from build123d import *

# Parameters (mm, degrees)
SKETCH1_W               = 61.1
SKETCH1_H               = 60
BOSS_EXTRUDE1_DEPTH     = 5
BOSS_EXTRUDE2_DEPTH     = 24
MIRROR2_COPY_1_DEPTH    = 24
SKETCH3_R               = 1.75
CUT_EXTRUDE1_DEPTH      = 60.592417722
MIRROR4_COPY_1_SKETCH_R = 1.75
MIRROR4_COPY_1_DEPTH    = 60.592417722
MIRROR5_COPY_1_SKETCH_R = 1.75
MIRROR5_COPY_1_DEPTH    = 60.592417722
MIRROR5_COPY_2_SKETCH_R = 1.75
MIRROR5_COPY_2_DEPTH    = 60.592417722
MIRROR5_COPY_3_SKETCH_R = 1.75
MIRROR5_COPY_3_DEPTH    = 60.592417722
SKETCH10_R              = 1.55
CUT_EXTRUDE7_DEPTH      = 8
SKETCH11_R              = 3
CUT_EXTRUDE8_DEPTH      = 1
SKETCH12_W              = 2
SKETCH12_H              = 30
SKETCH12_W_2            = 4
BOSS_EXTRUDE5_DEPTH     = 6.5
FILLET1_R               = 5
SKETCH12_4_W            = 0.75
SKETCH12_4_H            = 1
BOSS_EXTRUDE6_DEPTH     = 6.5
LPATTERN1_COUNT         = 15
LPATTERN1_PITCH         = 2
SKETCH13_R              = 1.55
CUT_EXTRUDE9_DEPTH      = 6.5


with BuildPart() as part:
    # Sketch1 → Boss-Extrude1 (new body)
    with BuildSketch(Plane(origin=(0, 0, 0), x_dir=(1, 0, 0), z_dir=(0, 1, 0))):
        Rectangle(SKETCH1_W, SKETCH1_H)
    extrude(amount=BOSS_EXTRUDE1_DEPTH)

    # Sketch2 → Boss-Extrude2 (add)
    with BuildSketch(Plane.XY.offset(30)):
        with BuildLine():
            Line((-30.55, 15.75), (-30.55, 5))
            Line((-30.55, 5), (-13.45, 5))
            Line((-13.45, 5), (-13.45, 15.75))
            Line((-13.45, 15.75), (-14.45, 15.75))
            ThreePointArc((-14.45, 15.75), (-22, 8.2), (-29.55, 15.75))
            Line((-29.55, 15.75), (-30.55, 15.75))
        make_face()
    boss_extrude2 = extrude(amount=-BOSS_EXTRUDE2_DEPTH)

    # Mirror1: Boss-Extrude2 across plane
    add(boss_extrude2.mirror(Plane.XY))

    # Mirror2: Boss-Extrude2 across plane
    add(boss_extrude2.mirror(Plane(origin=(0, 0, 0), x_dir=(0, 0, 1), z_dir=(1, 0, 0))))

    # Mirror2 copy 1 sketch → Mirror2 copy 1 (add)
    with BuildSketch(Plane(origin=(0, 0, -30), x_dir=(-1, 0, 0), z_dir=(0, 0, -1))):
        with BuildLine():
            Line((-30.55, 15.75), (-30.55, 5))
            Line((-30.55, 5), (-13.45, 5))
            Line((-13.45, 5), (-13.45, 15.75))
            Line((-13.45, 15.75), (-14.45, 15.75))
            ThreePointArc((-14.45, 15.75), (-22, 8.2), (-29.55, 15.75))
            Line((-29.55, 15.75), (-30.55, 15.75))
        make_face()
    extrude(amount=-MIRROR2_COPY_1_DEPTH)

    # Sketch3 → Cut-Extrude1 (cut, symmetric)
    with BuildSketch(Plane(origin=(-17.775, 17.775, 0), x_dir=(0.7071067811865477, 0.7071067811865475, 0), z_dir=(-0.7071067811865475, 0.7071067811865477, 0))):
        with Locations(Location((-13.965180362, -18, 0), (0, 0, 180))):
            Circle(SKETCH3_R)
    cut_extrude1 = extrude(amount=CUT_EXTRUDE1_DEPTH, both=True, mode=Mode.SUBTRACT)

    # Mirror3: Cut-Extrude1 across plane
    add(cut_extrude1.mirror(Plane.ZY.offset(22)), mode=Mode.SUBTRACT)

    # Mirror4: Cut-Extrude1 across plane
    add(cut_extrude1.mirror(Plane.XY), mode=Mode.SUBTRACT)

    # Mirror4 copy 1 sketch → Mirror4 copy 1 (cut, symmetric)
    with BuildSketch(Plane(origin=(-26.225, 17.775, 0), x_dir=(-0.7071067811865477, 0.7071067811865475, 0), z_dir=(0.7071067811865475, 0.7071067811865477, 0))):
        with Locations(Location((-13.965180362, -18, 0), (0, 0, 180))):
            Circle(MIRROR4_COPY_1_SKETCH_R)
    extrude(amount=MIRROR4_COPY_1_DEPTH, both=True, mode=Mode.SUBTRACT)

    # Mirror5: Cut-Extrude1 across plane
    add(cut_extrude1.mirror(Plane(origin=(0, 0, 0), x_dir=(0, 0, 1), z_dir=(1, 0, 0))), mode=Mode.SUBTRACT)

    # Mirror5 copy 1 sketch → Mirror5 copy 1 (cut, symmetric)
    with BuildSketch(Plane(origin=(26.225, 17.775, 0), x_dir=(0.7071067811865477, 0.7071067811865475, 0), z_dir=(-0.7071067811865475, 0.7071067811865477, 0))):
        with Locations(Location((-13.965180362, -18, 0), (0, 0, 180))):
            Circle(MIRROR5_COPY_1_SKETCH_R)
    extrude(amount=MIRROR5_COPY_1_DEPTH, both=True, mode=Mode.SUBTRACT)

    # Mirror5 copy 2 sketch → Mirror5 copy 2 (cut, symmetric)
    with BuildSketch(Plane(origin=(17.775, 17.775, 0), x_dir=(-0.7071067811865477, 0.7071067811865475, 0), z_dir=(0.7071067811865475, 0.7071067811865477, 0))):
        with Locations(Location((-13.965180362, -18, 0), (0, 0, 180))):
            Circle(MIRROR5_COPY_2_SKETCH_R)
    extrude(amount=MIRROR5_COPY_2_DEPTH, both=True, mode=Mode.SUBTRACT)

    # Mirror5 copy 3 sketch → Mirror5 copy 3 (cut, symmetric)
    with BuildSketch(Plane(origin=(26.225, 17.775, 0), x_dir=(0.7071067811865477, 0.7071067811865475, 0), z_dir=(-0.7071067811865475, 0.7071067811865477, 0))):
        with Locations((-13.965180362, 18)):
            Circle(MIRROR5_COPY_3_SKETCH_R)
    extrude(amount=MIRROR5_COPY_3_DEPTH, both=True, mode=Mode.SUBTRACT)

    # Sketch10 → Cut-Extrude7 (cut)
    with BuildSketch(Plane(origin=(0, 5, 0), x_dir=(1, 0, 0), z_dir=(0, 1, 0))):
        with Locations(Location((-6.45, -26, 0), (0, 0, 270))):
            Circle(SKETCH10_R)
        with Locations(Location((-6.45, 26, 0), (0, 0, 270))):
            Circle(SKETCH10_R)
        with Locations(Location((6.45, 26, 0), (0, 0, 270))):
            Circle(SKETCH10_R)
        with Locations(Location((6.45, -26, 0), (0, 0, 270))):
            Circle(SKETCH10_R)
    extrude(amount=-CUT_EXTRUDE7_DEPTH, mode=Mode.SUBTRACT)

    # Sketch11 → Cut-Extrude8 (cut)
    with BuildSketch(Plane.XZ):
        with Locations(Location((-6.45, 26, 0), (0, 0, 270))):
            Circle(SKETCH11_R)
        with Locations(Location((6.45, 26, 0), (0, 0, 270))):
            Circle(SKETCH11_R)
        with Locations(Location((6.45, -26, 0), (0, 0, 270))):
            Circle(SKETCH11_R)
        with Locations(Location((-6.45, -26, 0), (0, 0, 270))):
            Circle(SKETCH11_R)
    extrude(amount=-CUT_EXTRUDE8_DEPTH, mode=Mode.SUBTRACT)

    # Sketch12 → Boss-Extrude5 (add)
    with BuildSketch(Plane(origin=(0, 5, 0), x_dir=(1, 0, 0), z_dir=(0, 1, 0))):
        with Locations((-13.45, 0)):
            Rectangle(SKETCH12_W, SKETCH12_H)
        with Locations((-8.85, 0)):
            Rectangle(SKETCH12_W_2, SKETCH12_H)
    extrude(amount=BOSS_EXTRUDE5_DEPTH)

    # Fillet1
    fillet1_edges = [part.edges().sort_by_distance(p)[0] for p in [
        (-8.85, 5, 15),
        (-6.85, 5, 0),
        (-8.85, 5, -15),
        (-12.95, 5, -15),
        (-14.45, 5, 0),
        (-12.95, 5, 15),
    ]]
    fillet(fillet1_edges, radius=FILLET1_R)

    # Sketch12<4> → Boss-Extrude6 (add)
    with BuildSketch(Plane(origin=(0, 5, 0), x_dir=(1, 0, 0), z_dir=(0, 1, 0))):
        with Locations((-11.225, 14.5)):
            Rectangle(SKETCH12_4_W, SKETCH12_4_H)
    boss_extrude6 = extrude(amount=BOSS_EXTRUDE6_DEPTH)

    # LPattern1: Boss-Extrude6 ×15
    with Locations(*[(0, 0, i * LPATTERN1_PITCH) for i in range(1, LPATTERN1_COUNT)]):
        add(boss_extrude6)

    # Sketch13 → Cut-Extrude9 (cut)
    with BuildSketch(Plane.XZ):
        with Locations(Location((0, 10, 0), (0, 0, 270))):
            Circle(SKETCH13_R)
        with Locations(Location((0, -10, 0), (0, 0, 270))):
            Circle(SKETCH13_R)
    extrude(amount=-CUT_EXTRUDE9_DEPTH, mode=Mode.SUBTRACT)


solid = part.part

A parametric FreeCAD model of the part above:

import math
import FreeCAD as App
import Part
import Sketcher

V = App.Vector


def edges_at(feature, points):
    """Names of the edges that pass closest to the given points."""
    edges = feature.Shape.Edges
    near = lambda p: min(range(len(edges)), key=lambda i: edges[i].distToShape(Part.Vertex(*p))[0])
    return sorted({f"Edge{near(p) + 1}" for p in points})

doc = App.newDocument("Part")
body = doc.addObject("PartDesign::Body", "Body")

# Sketch on XZ plane
sketch1 = body.newObject("Sketcher::SketchObject", "Sketch")
sketch1.AttachmentSupport = (doc.getObject("XZ_Plane"), [""])
sketch1.MapMode = "FlatFace"
sketch1.addGeometry(Part.LineSegment(V(-31, -30, 0), V(-31, 30, 0)), False)
sketch1.addGeometry(Part.LineSegment(V(-31, 30, 0), V(31, 30, 0)), False)
sketch1.addGeometry(Part.LineSegment(V(31, 30, 0), V(31, -30, 0)), False)
sketch1.addGeometry(Part.LineSegment(V(31, -30, 0), V(-31, -30, 0)), False)
sketch1.addConstraint(Sketcher.Constraint("Coincident", 0, 2, 1, 1))
sketch1.addConstraint(Sketcher.Constraint("Coincident", 1, 2, 2, 1))
sketch1.addConstraint(Sketcher.Constraint("Coincident", 2, 2, 3, 1))
sketch1.addConstraint(Sketcher.Constraint("Coincident", 3, 2, 0, 1))
sketch1.addConstraint(Sketcher.Constraint("Vertical", 0))
sketch1.addConstraint(Sketcher.Constraint("Horizontal", 1))
sketch1.addConstraint(Sketcher.Constraint("Vertical", 2))
sketch1.addConstraint(Sketcher.Constraint("Horizontal", 3))
sketch1.addConstraint(Sketcher.Constraint("Symmetric", 0, 2, 2, 2, -1, 1))
sketch1.addConstraint(Sketcher.Constraint("DistanceY", 0, 1, 0, 2, 60.0))
sketch1.addConstraint(Sketcher.Constraint("DistanceX", 1, 1, 1, 2, 61.1))
pad1 = body.newObject("PartDesign::Pad", "Pad")
pad1.Profile = sketch1
pad1.Length = 5
pad1.Reversed = True

# Sketch on XY plane
sketch2 = body.newObject("Sketcher::SketchObject", "Sketch001")
sketch2.AttachmentSupport = (doc.getObject("XY_Plane"), [""])
sketch2.MapMode = "FlatFace"
sketch2.AttachmentOffset = App.Placement(V(0, 0, 30), App.Rotation())
sketch2.addGeometry(Part.LineSegment(V(-30.6, 15.8, 0), V(-30.6, 5, 0)), False)
sketch2.addGeometry(Part.LineSegment(V(-30.6, 5, 0), V(-13.4, 5, 0)), False)
sketch2.addGeometry(Part.LineSegment(V(-13.4, 5, 0), V(-13.4, 15.8, 0)), False)
sketch2.addGeometry(Part.LineSegment(V(-13.4, 15.8, 0), V(-14.4, 15.8, 0)), False)
sketch2.addGeometry(Part.ArcOfCircle(Part.Circle(V(-22, 15.8, 0), V(0, 0, 1), 7.5), math.radians(180), math.radians(360)), False)
sketch2.addGeometry(Part.LineSegment(V(-29.6, 15.8, 0), V(-30.6, 15.8, 0)), False)
sketch2.addConstraint(Sketcher.Constraint("Coincident", 0, 2, 1, 1))
sketch2.addConstraint(Sketcher.Constraint("Coincident", 1, 2, 2, 1))
sketch2.addConstraint(Sketcher.Constraint("Coincident", 2, 2, 3, 1))
sketch2.addConstraint(Sketcher.Constraint("Coincident", 3, 2, 4, 2))
sketch2.addConstraint(Sketcher.Constraint("Coincident", 4, 1, 5, 1))
sketch2.addConstraint(Sketcher.Constraint("Coincident", 5, 2, 0, 1))
sketch2.addConstraint(Sketcher.Constraint("Vertical", 0))
sketch2.addConstraint(Sketcher.Constraint("Horizontal", 1))
sketch2.addConstraint(Sketcher.Constraint("Vertical", 2))
sketch2.addConstraint(Sketcher.Constraint("Horizontal", 3))
sketch2.addConstraint(Sketcher.Constraint("Horizontal", 5))
sketch2.addConstraint(Sketcher.Constraint("Horizontal", 4, 3, 2, 2))
sketch2.addConstraint(Sketcher.Constraint("Horizontal", 3, 2, 4, 1))
sketch2.addConstraint(Sketcher.Constraint("Equal", 3, 5))
sketch2.addConstraint(Sketcher.Constraint("DistanceX", 3, 2, 3, 1, 1.0))
sketch2.addConstraint(Sketcher.Constraint("Radius", 4, 7.55))
sketch2.addConstraint(Sketcher.Constraint("DistanceX", 4, 3, -1, 1, 22.0))
sketch2.addConstraint(Sketcher.Constraint("DistanceY", -1, 1, 0, 2, 5.0))
sketch2.addConstraint(Sketcher.Constraint("DistanceY", 0, 2, 0, 1, 10.75))
pad2 = body.newObject("PartDesign::Pad", "Pad001")
pad2.Profile = sketch2
pad2.Length = 24
pad2.Reversed = True
doc.recompute()

mirrored = body.newObject("PartDesign::Mirrored", "Mirrored")
mirrored.Originals = [pad2]
mirrored.MirrorPlane = (doc.getObject("XY_Plane"), [""])
body.Tip = mirrored
doc.recompute()

mirrored2 = body.newObject("PartDesign::Mirrored", "Mirrored001")
mirrored2.Originals = [pad2]
mirrored2.MirrorPlane = (doc.getObject("YZ_Plane"), [""])
body.Tip = mirrored2

# Sketch on XY plane
sketch3 = body.newObject("Sketcher::SketchObject", "Sketch002")
sketch3.AttachmentSupport = (doc.getObject("XY_Plane"), [""])
sketch3.MapMode = "FlatFace"
sketch3.AttachmentOffset = App.Placement(V(0, 0, -30), App.Rotation())
sketch3.addGeometry(Part.LineSegment(V(30.6, 15.8, 0), V(30.6, 5, 0)), False)
sketch3.addGeometry(Part.LineSegment(V(30.6, 5, 0), V(13.4, 5, 0)), False)
sketch3.addGeometry(Part.LineSegment(V(13.4, 5, 0), V(13.4, 15.8, 0)), False)
sketch3.addGeometry(Part.LineSegment(V(13.4, 15.8, 0), V(14.4, 15.8, 0)), False)
sketch3.addGeometry(Part.ArcOfCircle(Part.Circle(V(22, 15.8, 0), V(0, 0, 1), 7.5), math.radians(180), math.radians(360)), False)
sketch3.addGeometry(Part.LineSegment(V(29.6, 15.8, 0), V(30.6, 15.8, 0)), False)
sketch3.addConstraint(Sketcher.Constraint("Coincident", 0, 2, 1, 1))
sketch3.addConstraint(Sketcher.Constraint("Coincident", 1, 2, 2, 1))
sketch3.addConstraint(Sketcher.Constraint("Coincident", 2, 2, 3, 1))
sketch3.addConstraint(Sketcher.Constraint("Coincident", 3, 2, 4, 1))
sketch3.addConstraint(Sketcher.Constraint("Coincident", 4, 2, 5, 1))
sketch3.addConstraint(Sketcher.Constraint("Coincident", 5, 2, 0, 1))
sketch3.addConstraint(Sketcher.Constraint("Vertical", 0))
sketch3.addConstraint(Sketcher.Constraint("Horizontal", 1))
sketch3.addConstraint(Sketcher.Constraint("Vertical", 2))
sketch3.addConstraint(Sketcher.Constraint("Horizontal", 3))
sketch3.addConstraint(Sketcher.Constraint("Horizontal", 5))
sketch3.addConstraint(Sketcher.Constraint("Horizontal", 4, 3, 2, 2))
sketch3.addConstraint(Sketcher.Constraint("Horizontal", 3, 2, 4, 2))
sketch3.addConstraint(Sketcher.Constraint("Equal", 3, 5))
sketch3.addConstraint(Sketcher.Constraint("DistanceX", 3, 1, 3, 2, 1.0))
sketch3.addConstraint(Sketcher.Constraint("Radius", 4, 7.55))
sketch3.addConstraint(Sketcher.Constraint("DistanceX", -1, 1, 4, 3, 22.0))
sketch3.addConstraint(Sketcher.Constraint("DistanceY", -1, 1, 0, 2, 5.0))
sketch3.addConstraint(Sketcher.Constraint("DistanceY", 0, 2, 0, 1, 10.75))
pad3 = body.newObject("PartDesign::Pad", "Pad002")
pad3.Profile = sketch3
pad3.Length = 24

# Sketch on an angled plane
sketch4 = body.newObject("Sketcher::SketchObject", "Sketch003")
sketch4.Placement = App.Placement(V(-17.775, 17.775, 0), App.Rotation(V(0.707106781, 0.707106781, 0), V(0, 0, -0.999999999), V(-0.707106781, 0.707106781, 0), "ZXY"))
sketch4.addGeometry(Part.Circle(V(-14, -18, 0), V(0, 0, 1), 1.8), False)
sketch4.addConstraint(Sketcher.Constraint("Diameter", 0, 3.5))
sketch4.addConstraint(Sketcher.Constraint("DistanceY", 0, 3, -1, 1, 18.0))
sketch4.addConstraint(Sketcher.Constraint("DistanceX", 0, 3, -1, 1, 13.96518))
pocket1 = body.newObject("PartDesign::Pocket", "Pocket")
pocket1.Profile = sketch4
pocket1.Length = 121.184835
pocket1.Midplane = True
doc.recompute()

datumplane = body.newObject("PartDesign::Plane", "DatumPlane")
datumplane.AttachmentSupport = (doc.getObject("YZ_Plane"), [""])
datumplane.MapMode = "FlatFace"
datumplane.AttachmentOffset = App.Placement(V(0, 0, -22), App.Rotation())
mirrored3 = body.newObject("PartDesign::Mirrored", "Mirrored002")
mirrored3.Originals = [pocket1]
mirrored3.MirrorPlane = (datumplane, [""])
body.Tip = mirrored3
doc.recompute()

mirrored4 = body.newObject("PartDesign::Mirrored", "Mirrored003")
mirrored4.Originals = [pocket1]
mirrored4.MirrorPlane = (doc.getObject("XY_Plane"), [""])
body.Tip = mirrored4

# Sketch on an angled plane
sketch5 = body.newObject("Sketcher::SketchObject", "Sketch004")
sketch5.Placement = App.Placement(V(-26.225, 17.775, 0), App.Rotation(V(-0.707106781, 0.707106781, 0), V(0, 0, 0.999999999), V(0.707106781, 0.707106781, 0), "ZXY"))
sketch5.addGeometry(Part.Circle(V(-14, -18, 0), V(0, 0, 1), 1.8), False)
sketch5.addConstraint(Sketcher.Constraint("Diameter", 0, 3.5))
sketch5.addConstraint(Sketcher.Constraint("DistanceY", 0, 3, -1, 1, 18.0))
sketch5.addConstraint(Sketcher.Constraint("DistanceX", 0, 3, -1, 1, 13.96518))
pocket2 = body.newObject("PartDesign::Pocket", "Pocket001")
pocket2.Profile = sketch5
pocket2.Length = 121.184835
pocket2.Midplane = True
doc.recompute()

mirrored5 = body.newObject("PartDesign::Mirrored", "Mirrored004")
mirrored5.Originals = [pocket1]
mirrored5.MirrorPlane = (doc.getObject("YZ_Plane"), [""])
body.Tip = mirrored5

# Sketch on an angled plane
sketch6 = body.newObject("Sketcher::SketchObject", "Sketch005")
sketch6.Placement = App.Placement(V(26.225, 17.775, 0), App.Rotation(V(0.707106781, 0.707106781, 0), V(0, 0, -0.999999999), V(-0.707106781, 0.707106781, 0), "ZXY"))
sketch6.addGeometry(Part.Circle(V(-14, -18, 0), V(0, 0, 1), 1.8), False)
sketch6.addConstraint(Sketcher.Constraint("Diameter", 0, 3.5))
sketch6.addConstraint(Sketcher.Constraint("DistanceY", 0, 3, -1, 1, 18.0))
sketch6.addConstraint(Sketcher.Constraint("DistanceX", 0, 3, -1, 1, 13.96518))
pocket3 = body.newObject("PartDesign::Pocket", "Pocket002")
pocket3.Profile = sketch6
pocket3.Length = 121.184835
pocket3.Midplane = True

# Sketch on an angled plane
sketch7 = body.newObject("Sketcher::SketchObject", "Sketch006")
sketch7.Placement = App.Placement(V(17.775, 17.775, 0), App.Rotation(V(-0.707106781, 0.707106781, 0), V(0, 0, 0.999999999), V(0.707106781, 0.707106781, 0), "ZXY"))
sketch7.addGeometry(Part.Circle(V(-14, -18, 0), V(0, 0, 1), 1.8), False)
sketch7.addConstraint(Sketcher.Constraint("Diameter", 0, 3.5))
sketch7.addConstraint(Sketcher.Constraint("DistanceY", 0, 3, -1, 1, 18.0))
sketch7.addConstraint(Sketcher.Constraint("DistanceX", 0, 3, -1, 1, 13.96518))
pocket4 = body.newObject("PartDesign::Pocket", "Pocket003")
pocket4.Profile = sketch7
pocket4.Length = 121.184835
pocket4.Midplane = True

# Sketch on an angled plane
sketch8 = body.newObject("Sketcher::SketchObject", "Sketch007")
sketch8.Placement = App.Placement(V(26.225, 17.775, 0), App.Rotation(V(0.707106781, 0.707106781, 0), V(0, 0, -0.999999999), V(-0.707106781, 0.707106781, 0), "ZXY"))
sketch8.addGeometry(Part.Circle(V(-14, 18, 0), V(0, 0, 1), 1.8), False)
sketch8.addConstraint(Sketcher.Constraint("Diameter", 0, 3.5))
sketch8.addConstraint(Sketcher.Constraint("DistanceY", -1, 1, 0, 3, 18.0))
sketch8.addConstraint(Sketcher.Constraint("DistanceX", 0, 3, -1, 1, 13.96518))
pocket5 = body.newObject("PartDesign::Pocket", "Pocket004")
pocket5.Profile = sketch8
pocket5.Length = 121.184835
pocket5.Midplane = True

# Sketch on XZ plane
sketch9 = body.newObject("Sketcher::SketchObject", "Sketch008")
sketch9.AttachmentSupport = (doc.getObject("XZ_Plane"), [""])
sketch9.MapMode = "FlatFace"
sketch9.AttachmentOffset = App.Placement(V(0, 0, -5), App.Rotation())
sketch9.addGeometry(Part.Circle(V(-6.5, 26, 0), V(0, 0, 1), 1.6), False)
sketch9.addGeometry(Part.Circle(V(-6.5, -26, 0), V(0, 0, 1), 1.6), False)
sketch9.addGeometry(Part.Circle(V(6.5, -26, 0), V(0, 0, 1), 1.6), False)
sketch9.addGeometry(Part.Circle(V(6.5, 26, 0), V(0, 0, 1), 1.6), False)
sketch9.addConstraint(Sketcher.Constraint("Equal", 0, 1))
sketch9.addConstraint(Sketcher.Constraint("Equal", 1, 2))
sketch9.addConstraint(Sketcher.Constraint("Equal", 2, 3))
sketch9.addConstraint(Sketcher.Constraint("Symmetric", 0, 3, 2, 3, -1, 1))
sketch9.addConstraint(Sketcher.Constraint("Symmetric", 1, 3, 3, 3, -1, 1))
sketch9.addConstraint(Sketcher.Constraint("Symmetric", 1, 3, 2, 3, -2))
sketch9.addConstraint(Sketcher.Constraint("Diameter", 0, 3.1))
sketch9.addConstraint(Sketcher.Constraint("DistanceY", -1, 1, 0, 3, 26.0))
sketch9.addConstraint(Sketcher.Constraint("DistanceX", 1, 3, 2, 3, 12.9))
pocket6 = body.newObject("PartDesign::Pocket", "Pocket005")
pocket6.Profile = sketch9
pocket6.Length = 8
pocket6.Reversed = True

# Sketch on XZ plane
sketch10 = body.newObject("Sketcher::SketchObject", "Sketch009")
sketch10.AttachmentSupport = (doc.getObject("XZ_Plane"), [""])
sketch10.MapMode = "FlatFace"
sketch10.addGeometry(Part.Circle(V(-6.5, 26, 0), V(0, 0, 1), 3), False)
sketch10.addGeometry(Part.Circle(V(6.5, 26, 0), V(0, 0, 1), 3), False)
sketch10.addGeometry(Part.Circle(V(6.5, -26, 0), V(0, 0, 1), 3), False)
sketch10.addGeometry(Part.Circle(V(-6.5, -26, 0), V(0, 0, 1), 3), False)
sketch10.addConstraint(Sketcher.Constraint("Equal", 0, 1))
sketch10.addConstraint(Sketcher.Constraint("Equal", 1, 2))
sketch10.addConstraint(Sketcher.Constraint("Equal", 2, 3))
sketch10.addConstraint(Sketcher.Constraint("Symmetric", 0, 3, 2, 3, -1, 1))
sketch10.addConstraint(Sketcher.Constraint("Symmetric", 1, 3, 3, 3, -1, 1))
sketch10.addConstraint(Sketcher.Constraint("Symmetric", 0, 3, 1, 3, -2))
sketch10.addConstraint(Sketcher.Constraint("Diameter", 0, 6.0))
sketch10.addConstraint(Sketcher.Constraint("DistanceY", -1, 1, 0, 3, 26.0))
sketch10.addConstraint(Sketcher.Constraint("DistanceX", 0, 3, 1, 3, 12.9))
pocket7 = body.newObject("PartDesign::Pocket", "Pocket006")
pocket7.Profile = sketch10
pocket7.Length = 1

# Sketch on XZ plane
sketch11 = body.newObject("Sketcher::SketchObject", "Sketch010")
sketch11.AttachmentSupport = (doc.getObject("XZ_Plane"), [""])
sketch11.MapMode = "FlatFace"
sketch11.AttachmentOffset = App.Placement(V(0, 0, -5), App.Rotation())
sketch11.addGeometry(Part.LineSegment(V(-14.4, -15, 0), V(-14.4, 15, 0)), False)
sketch11.addGeometry(Part.LineSegment(V(-14.4, 15, 0), V(-12.4, 15, 0)), False)
sketch11.addGeometry(Part.LineSegment(V(-12.4, 15, 0), V(-12.4, -15, 0)), False)
sketch11.addGeometry(Part.LineSegment(V(-12.4, -15, 0), V(-14.4, -15, 0)), False)
sketch11.addGeometry(Part.LineSegment(V(-10.8, -15, 0), V(-10.8, 15, 0)), False)
sketch11.addGeometry(Part.LineSegment(V(-10.8, 15, 0), V(-6.8, 15, 0)), False)
sketch11.addGeometry(Part.LineSegment(V(-6.8, 15, 0), V(-6.8, -15, 0)), False)
sketch11.addGeometry(Part.LineSegment(V(-6.8, -15, 0), V(-10.8, -15, 0)), False)
sketch11.addConstraint(Sketcher.Constraint("Coincident", 0, 2, 1, 1))
sketch11.addConstraint(Sketcher.Constraint("Coincident", 1, 2, 2, 1))
sketch11.addConstraint(Sketcher.Constraint("Coincident", 2, 2, 3, 1))
sketch11.addConstraint(Sketcher.Constraint("Coincident", 3, 2, 0, 1))
sketch11.addConstraint(Sketcher.Constraint("Coincident", 4, 2, 5, 1))
sketch11.addConstraint(Sketcher.Constraint("Coincident", 5, 2, 6, 1))
sketch11.addConstraint(Sketcher.Constraint("Coincident", 6, 2, 7, 1))
sketch11.addConstraint(Sketcher.Constraint("Coincident", 7, 2, 4, 1))
sketch11.addConstraint(Sketcher.Constraint("Vertical", 0))
sketch11.addConstraint(Sketcher.Constraint("Horizontal", 1))
sketch11.addConstraint(Sketcher.Constraint("Vertical", 2))
sketch11.addConstraint(Sketcher.Constraint("Horizontal", 3))
sketch11.addConstraint(Sketcher.Constraint("Vertical", 4))
sketch11.addConstraint(Sketcher.Constraint("Horizontal", 5))
sketch11.addConstraint(Sketcher.Constraint("Vertical", 6))
sketch11.addConstraint(Sketcher.Constraint("Horizontal", 7))
sketch11.addConstraint(Sketcher.Constraint("Horizontal", 1, 2, 4, 2))
sketch11.addConstraint(Sketcher.Constraint("Horizontal", 3, 2, 6, 2))
sketch11.addConstraint(Sketcher.Constraint("DistanceX", 1, 1, 1, 2, 2.0))
sketch11.addConstraint(Sketcher.Constraint("DistanceX", 5, 1, 5, 2, 4.0))
sketch11.addConstraint(Sketcher.Constraint("DistanceY", 0, 1, 0, 2, 30.0))
sketch11.addConstraint(Sketcher.Constraint("DistanceY", -1, 1, 0, 2, 15.0))
sketch11.addConstraint(Sketcher.Constraint("DistanceX", 1, 2, 4, 2, 1.6))
sketch11.addConstraint(Sketcher.Constraint("DistanceX", 0, 2, -1, 1, 14.45))
pad4 = body.newObject("PartDesign::Pad", "Pad003")
pad4.Profile = sketch11
pad4.Length = 6.5
pad4.Reversed = True
doc.recompute()

fillet = body.newObject("PartDesign::Fillet", "Fillet")
fillet.Base = (pad4, edges_at(pad4, [
    (-8.85, 5, 15),
    (-6.85, 5, 0),
    (-8.85, 5, -15),
    (-12.95, 5, -15),
    (-14.45, 5, 0),
    (-12.95, 5, 15),
]))
fillet.Radius = 5

# Sketch on XZ plane
sketch12 = body.newObject("Sketcher::SketchObject", "Sketch011")
sketch12.AttachmentSupport = (doc.getObject("XZ_Plane"), [""])
sketch12.MapMode = "FlatFace"
sketch12.AttachmentOffset = App.Placement(V(0, 0, -5), App.Rotation())
sketch12.addGeometry(Part.LineSegment(V(-11.6, -15, 0), V(-11.6, -14, 0)), False)
sketch12.addGeometry(Part.LineSegment(V(-11.6, -14, 0), V(-10.8, -14, 0)), False)
sketch12.addGeometry(Part.LineSegment(V(-10.8, -14, 0), V(-10.8, -15, 0)), False)
sketch12.addGeometry(Part.LineSegment(V(-10.8, -15, 0), V(-11.6, -15, 0)), False)
sketch12.addConstraint(Sketcher.Constraint("Coincident", 0, 2, 1, 1))
sketch12.addConstraint(Sketcher.Constraint("Coincident", 1, 2, 2, 1))
sketch12.addConstraint(Sketcher.Constraint("Coincident", 2, 2, 3, 1))
sketch12.addConstraint(Sketcher.Constraint("Coincident", 3, 2, 0, 1))
sketch12.addConstraint(Sketcher.Constraint("Vertical", 0))
sketch12.addConstraint(Sketcher.Constraint("Horizontal", 1))
sketch12.addConstraint(Sketcher.Constraint("Vertical", 2))
sketch12.addConstraint(Sketcher.Constraint("Horizontal", 3))
sketch12.addConstraint(Sketcher.Constraint("DistanceY", 0, 1, 0, 2, 1.0))
sketch12.addConstraint(Sketcher.Constraint("DistanceY", 0, 2, -1, 1, 14.0))
sketch12.addConstraint(Sketcher.Constraint("DistanceX", 1, 1, 1, 2, 0.75))
sketch12.addConstraint(Sketcher.Constraint("DistanceX", 0, 2, -1, 1, 11.6))
pad5 = body.newObject("PartDesign::Pad", "Pad004")
pad5.Profile = sketch12
pad5.Length = 6.5
pad5.Reversed = True
doc.recompute()

linearpattern = body.newObject("PartDesign::LinearPattern", "LinearPattern")
linearpattern.Originals = [pad5]
linearpattern.Direction = (doc.getObject("Z_Axis"), [""])
linearpattern.Mode = "offset"
linearpattern.Offset = 2
linearpattern.Occurrences = 15
body.Tip = linearpattern

# Sketch on XZ plane
sketch13 = body.newObject("Sketcher::SketchObject", "Sketch012")
sketch13.AttachmentSupport = (doc.getObject("XZ_Plane"), [""])
sketch13.MapMode = "FlatFace"
sketch13.addGeometry(Part.Circle(V(0, 10, 0), V(0, 0, 1), 1.6), False)
sketch13.addGeometry(Part.Circle(V(0, -10, 0), V(0, 0, 1), 1.6), False)
sketch13.addConstraint(Sketcher.Constraint("Equal", 0, 1))
sketch13.addConstraint(Sketcher.Constraint("Symmetric", 0, 3, 1, 3, -1, 1))
sketch13.addConstraint(Sketcher.Constraint("PointOnObject", 0, 3, -2))
sketch13.addConstraint(Sketcher.Constraint("Diameter", 0, 3.1))
sketch13.addConstraint(Sketcher.Constraint("DistanceY", -1, 1, 0, 3, 10.0))
pocket8 = body.newObject("PartDesign::Pocket", "Pocket007")
pocket8.Profile = sketch13
pocket8.Length = 6.5

doc.recompute()
